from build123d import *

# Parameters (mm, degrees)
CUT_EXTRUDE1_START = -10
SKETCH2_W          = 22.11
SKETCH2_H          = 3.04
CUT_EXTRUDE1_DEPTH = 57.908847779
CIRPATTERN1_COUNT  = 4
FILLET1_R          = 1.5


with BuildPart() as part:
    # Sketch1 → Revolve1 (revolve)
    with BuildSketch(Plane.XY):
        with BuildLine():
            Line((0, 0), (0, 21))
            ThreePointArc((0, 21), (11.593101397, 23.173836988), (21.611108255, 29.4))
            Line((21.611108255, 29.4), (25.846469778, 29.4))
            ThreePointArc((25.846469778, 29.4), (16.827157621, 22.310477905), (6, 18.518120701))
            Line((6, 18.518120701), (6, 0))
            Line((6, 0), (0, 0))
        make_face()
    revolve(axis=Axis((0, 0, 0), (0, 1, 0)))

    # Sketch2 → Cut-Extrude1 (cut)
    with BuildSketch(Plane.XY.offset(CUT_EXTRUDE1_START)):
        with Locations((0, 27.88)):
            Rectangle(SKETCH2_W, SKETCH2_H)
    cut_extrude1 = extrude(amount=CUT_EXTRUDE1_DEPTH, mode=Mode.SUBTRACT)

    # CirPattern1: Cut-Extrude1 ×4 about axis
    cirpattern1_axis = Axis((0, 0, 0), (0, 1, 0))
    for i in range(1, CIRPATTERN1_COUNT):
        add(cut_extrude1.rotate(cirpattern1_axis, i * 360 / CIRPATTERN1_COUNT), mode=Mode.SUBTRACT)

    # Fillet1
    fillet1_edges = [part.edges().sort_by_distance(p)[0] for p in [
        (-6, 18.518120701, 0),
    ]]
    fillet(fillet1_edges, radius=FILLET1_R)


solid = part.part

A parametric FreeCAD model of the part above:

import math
import FreeCAD as App
import Part
import Sketcher
from FreeCAD import Vector


def edges_at(feature, points):
    """Names of the edges that pass closest to the given points."""
    edges = feature.Shape.Edges
    near = lambda p: min(range(len(edges)), key=lambda i: edges[i].distToShape(Part.Vertex(*p))[0])
    return sorted({f"Edge{near(p) + 1}" for p in points})

doc = App.newDocument("Part")
body = doc.addObject("PartDesign::Body", "Body")

# Sketch on XY plane
sketch1 = doc.addObject("Sketcher::SketchObject", "Sketch")
body.addObject(sketch1)
sketch1.AttachmentSupport = (doc.XY_Plane, [""])
sketch1.MapMode = "FlatFace"
sketch1.addGeometry([
    Part.LineSegment(Vector(0, 21, 0), Vector(0, 0, 0)),  # 0
    Part.LineSegment(Vector(0, 0, 0), Vector(6, 0, 0)),  # 1
    Part.LineSegment(Vector(6, 0, 0), Vector(6, 18.518121, 0)),  # 2
    Part.ArcOfCircle(Part.Circle(Vector(0, 53, 0), Vector(0, 0, 1), 35), math.radians(-80.12911), math.radians(-42.398706)),  # 3
    Part.LineSegment(Vector(25.84647, 29.4, 0), Vector(21.611108, 29.4, 0)),  # 4
    Part.ArcOfCircle(Part.Circle(Vector(0, 53, 0), Vector(0, 0, 1), 32), math.radians(-90), math.radians(-47.518887)),  # 5
], False)
sketch1.addConstraint([
    Sketcher.Constraint("Coincident", 0, 2, 1, 1),
    Sketcher.Constraint("Coincident", 1, 2, 2, 1),
    Sketcher.Constraint("Coincident", 2, 2, 3, 1),
    Sketcher.Constraint("Coincident", 3, 2, 4, 1),
    Sketcher.Constraint("Coincident", 4, 2, 5, 2),
    Sketcher.Constraint("Coincident", 5, 1, 0, 1),
    Sketcher.Constraint("Vertical", 0),
    Sketcher.Constraint("Horizontal", 1),
    Sketcher.Constraint("Vertical", 2),
    Sketcher.Constraint("Horizontal", 4),
    Sketcher.Constraint("Coincident", 0, 2, -1, 1),
    Sketcher.Constraint("Coincident", 5, 3, 3, 3),
    Sketcher.Constraint("PointOnObject", 3, 3, -2),
    Sketcher.Constraint("Radius", 3, 35.0),
    Sketcher.Constraint("Radius", 5, 32.0),
    Sketcher.Constraint("DistanceX", 1, 1, 1, 2, 6.0),
    Sketcher.Constraint("DistanceY", 0, 2, 0, 1, 21.0),
    Sketcher.Constraint("DistanceY", -1, 1, 3, 2, 29.4),
])
revolution = doc.addObject("PartDesign::Revolution", "Revolution")
body.addObject(revolution)
revolution.Profile = sketch1
revolution.ReferenceAxis = (sketch1, ["V_Axis"])
revolution.Angle = 360

# Sketch on XY plane
sketch2 = doc.addObject("Sketcher::SketchObject", "Sketch001")
body.addObject(sketch2)
sketch2.AttachmentSupport = (doc.XY_Plane, [""])
sketch2.MapMode = "FlatFace"
sketch2.AttachmentOffset = App.Placement(Vector(0, 0, -10), App.Rotation())
sketch2.addGeometry([
    Part.LineSegment(Vector(-11.055, 29.4, 0), Vector(-11.055, 26.36, 0)),
    Part.LineSegment(Vector(-11.055, 26.36, 0), Vector(11.055, 26.36, 0)),
    Part.LineSegment(Vector(11.055, 26.36, 0), Vector(11.055, 29.4, 0)),
    Part.LineSegment(Vector(11.055, 29.4, 0), Vector(-11.055, 29.4, 0)),
], False)
sketch2.addConstraint([
    Sketcher.Constraint("Coincident", 0, 2, 1, 1),
    Sketcher.Constraint("Coincident", 1, 2, 2, 1),
    Sketcher.Constraint("Coincident", 2, 2, 3, 1),
    Sketcher.Constraint("Coincident", 3, 2, 0, 1),
    Sketcher.Constraint("Vertical", 0),
    Sketcher.Constraint("Horizontal", 1),
    Sketcher.Constraint("Vertical", 2),
    Sketcher.Constraint("Horizontal", 3),
    Sketcher.Constraint("DistanceX", 1, 1, 1, 2, 22.11),
    Sketcher.Constraint("DistanceY", 0, 2, 0, 1, 3.04),
    Sketcher.Constraint("DistanceY", -1, 1, 2, 2, 29.4),
    Sketcher.Constraint("DistanceX", 0, 2, -1, 1, 11.055),
])
pocket1 = doc.addObject("PartDesign::Pocket", "Pocket")
body.addObject(pocket1)
pocket1.Profile = sketch2
pocket1.Length = 57.908848
pocket1.Reversed = True
doc.recompute()

polarpattern = doc.addObject("PartDesign::PolarPattern", "PolarPattern")
body.addObject(polarpattern)
polarpattern.Originals = [pocket1]
polarpattern.Axis = (doc.Y_Axis, [""])
polarpattern.Angle = 360
polarpattern.Occurrences = 4
body.Tip = polarpattern
doc.recompute()

fillet = doc.addObject("PartDesign::Fillet", "Fillet")
body.addObject(fillet)
fillet.Base = (polarpattern, edges_at(polarpattern, [(-6, 18.518, 0)]))
fillet.Radius = 1.5

doc.recompute()
